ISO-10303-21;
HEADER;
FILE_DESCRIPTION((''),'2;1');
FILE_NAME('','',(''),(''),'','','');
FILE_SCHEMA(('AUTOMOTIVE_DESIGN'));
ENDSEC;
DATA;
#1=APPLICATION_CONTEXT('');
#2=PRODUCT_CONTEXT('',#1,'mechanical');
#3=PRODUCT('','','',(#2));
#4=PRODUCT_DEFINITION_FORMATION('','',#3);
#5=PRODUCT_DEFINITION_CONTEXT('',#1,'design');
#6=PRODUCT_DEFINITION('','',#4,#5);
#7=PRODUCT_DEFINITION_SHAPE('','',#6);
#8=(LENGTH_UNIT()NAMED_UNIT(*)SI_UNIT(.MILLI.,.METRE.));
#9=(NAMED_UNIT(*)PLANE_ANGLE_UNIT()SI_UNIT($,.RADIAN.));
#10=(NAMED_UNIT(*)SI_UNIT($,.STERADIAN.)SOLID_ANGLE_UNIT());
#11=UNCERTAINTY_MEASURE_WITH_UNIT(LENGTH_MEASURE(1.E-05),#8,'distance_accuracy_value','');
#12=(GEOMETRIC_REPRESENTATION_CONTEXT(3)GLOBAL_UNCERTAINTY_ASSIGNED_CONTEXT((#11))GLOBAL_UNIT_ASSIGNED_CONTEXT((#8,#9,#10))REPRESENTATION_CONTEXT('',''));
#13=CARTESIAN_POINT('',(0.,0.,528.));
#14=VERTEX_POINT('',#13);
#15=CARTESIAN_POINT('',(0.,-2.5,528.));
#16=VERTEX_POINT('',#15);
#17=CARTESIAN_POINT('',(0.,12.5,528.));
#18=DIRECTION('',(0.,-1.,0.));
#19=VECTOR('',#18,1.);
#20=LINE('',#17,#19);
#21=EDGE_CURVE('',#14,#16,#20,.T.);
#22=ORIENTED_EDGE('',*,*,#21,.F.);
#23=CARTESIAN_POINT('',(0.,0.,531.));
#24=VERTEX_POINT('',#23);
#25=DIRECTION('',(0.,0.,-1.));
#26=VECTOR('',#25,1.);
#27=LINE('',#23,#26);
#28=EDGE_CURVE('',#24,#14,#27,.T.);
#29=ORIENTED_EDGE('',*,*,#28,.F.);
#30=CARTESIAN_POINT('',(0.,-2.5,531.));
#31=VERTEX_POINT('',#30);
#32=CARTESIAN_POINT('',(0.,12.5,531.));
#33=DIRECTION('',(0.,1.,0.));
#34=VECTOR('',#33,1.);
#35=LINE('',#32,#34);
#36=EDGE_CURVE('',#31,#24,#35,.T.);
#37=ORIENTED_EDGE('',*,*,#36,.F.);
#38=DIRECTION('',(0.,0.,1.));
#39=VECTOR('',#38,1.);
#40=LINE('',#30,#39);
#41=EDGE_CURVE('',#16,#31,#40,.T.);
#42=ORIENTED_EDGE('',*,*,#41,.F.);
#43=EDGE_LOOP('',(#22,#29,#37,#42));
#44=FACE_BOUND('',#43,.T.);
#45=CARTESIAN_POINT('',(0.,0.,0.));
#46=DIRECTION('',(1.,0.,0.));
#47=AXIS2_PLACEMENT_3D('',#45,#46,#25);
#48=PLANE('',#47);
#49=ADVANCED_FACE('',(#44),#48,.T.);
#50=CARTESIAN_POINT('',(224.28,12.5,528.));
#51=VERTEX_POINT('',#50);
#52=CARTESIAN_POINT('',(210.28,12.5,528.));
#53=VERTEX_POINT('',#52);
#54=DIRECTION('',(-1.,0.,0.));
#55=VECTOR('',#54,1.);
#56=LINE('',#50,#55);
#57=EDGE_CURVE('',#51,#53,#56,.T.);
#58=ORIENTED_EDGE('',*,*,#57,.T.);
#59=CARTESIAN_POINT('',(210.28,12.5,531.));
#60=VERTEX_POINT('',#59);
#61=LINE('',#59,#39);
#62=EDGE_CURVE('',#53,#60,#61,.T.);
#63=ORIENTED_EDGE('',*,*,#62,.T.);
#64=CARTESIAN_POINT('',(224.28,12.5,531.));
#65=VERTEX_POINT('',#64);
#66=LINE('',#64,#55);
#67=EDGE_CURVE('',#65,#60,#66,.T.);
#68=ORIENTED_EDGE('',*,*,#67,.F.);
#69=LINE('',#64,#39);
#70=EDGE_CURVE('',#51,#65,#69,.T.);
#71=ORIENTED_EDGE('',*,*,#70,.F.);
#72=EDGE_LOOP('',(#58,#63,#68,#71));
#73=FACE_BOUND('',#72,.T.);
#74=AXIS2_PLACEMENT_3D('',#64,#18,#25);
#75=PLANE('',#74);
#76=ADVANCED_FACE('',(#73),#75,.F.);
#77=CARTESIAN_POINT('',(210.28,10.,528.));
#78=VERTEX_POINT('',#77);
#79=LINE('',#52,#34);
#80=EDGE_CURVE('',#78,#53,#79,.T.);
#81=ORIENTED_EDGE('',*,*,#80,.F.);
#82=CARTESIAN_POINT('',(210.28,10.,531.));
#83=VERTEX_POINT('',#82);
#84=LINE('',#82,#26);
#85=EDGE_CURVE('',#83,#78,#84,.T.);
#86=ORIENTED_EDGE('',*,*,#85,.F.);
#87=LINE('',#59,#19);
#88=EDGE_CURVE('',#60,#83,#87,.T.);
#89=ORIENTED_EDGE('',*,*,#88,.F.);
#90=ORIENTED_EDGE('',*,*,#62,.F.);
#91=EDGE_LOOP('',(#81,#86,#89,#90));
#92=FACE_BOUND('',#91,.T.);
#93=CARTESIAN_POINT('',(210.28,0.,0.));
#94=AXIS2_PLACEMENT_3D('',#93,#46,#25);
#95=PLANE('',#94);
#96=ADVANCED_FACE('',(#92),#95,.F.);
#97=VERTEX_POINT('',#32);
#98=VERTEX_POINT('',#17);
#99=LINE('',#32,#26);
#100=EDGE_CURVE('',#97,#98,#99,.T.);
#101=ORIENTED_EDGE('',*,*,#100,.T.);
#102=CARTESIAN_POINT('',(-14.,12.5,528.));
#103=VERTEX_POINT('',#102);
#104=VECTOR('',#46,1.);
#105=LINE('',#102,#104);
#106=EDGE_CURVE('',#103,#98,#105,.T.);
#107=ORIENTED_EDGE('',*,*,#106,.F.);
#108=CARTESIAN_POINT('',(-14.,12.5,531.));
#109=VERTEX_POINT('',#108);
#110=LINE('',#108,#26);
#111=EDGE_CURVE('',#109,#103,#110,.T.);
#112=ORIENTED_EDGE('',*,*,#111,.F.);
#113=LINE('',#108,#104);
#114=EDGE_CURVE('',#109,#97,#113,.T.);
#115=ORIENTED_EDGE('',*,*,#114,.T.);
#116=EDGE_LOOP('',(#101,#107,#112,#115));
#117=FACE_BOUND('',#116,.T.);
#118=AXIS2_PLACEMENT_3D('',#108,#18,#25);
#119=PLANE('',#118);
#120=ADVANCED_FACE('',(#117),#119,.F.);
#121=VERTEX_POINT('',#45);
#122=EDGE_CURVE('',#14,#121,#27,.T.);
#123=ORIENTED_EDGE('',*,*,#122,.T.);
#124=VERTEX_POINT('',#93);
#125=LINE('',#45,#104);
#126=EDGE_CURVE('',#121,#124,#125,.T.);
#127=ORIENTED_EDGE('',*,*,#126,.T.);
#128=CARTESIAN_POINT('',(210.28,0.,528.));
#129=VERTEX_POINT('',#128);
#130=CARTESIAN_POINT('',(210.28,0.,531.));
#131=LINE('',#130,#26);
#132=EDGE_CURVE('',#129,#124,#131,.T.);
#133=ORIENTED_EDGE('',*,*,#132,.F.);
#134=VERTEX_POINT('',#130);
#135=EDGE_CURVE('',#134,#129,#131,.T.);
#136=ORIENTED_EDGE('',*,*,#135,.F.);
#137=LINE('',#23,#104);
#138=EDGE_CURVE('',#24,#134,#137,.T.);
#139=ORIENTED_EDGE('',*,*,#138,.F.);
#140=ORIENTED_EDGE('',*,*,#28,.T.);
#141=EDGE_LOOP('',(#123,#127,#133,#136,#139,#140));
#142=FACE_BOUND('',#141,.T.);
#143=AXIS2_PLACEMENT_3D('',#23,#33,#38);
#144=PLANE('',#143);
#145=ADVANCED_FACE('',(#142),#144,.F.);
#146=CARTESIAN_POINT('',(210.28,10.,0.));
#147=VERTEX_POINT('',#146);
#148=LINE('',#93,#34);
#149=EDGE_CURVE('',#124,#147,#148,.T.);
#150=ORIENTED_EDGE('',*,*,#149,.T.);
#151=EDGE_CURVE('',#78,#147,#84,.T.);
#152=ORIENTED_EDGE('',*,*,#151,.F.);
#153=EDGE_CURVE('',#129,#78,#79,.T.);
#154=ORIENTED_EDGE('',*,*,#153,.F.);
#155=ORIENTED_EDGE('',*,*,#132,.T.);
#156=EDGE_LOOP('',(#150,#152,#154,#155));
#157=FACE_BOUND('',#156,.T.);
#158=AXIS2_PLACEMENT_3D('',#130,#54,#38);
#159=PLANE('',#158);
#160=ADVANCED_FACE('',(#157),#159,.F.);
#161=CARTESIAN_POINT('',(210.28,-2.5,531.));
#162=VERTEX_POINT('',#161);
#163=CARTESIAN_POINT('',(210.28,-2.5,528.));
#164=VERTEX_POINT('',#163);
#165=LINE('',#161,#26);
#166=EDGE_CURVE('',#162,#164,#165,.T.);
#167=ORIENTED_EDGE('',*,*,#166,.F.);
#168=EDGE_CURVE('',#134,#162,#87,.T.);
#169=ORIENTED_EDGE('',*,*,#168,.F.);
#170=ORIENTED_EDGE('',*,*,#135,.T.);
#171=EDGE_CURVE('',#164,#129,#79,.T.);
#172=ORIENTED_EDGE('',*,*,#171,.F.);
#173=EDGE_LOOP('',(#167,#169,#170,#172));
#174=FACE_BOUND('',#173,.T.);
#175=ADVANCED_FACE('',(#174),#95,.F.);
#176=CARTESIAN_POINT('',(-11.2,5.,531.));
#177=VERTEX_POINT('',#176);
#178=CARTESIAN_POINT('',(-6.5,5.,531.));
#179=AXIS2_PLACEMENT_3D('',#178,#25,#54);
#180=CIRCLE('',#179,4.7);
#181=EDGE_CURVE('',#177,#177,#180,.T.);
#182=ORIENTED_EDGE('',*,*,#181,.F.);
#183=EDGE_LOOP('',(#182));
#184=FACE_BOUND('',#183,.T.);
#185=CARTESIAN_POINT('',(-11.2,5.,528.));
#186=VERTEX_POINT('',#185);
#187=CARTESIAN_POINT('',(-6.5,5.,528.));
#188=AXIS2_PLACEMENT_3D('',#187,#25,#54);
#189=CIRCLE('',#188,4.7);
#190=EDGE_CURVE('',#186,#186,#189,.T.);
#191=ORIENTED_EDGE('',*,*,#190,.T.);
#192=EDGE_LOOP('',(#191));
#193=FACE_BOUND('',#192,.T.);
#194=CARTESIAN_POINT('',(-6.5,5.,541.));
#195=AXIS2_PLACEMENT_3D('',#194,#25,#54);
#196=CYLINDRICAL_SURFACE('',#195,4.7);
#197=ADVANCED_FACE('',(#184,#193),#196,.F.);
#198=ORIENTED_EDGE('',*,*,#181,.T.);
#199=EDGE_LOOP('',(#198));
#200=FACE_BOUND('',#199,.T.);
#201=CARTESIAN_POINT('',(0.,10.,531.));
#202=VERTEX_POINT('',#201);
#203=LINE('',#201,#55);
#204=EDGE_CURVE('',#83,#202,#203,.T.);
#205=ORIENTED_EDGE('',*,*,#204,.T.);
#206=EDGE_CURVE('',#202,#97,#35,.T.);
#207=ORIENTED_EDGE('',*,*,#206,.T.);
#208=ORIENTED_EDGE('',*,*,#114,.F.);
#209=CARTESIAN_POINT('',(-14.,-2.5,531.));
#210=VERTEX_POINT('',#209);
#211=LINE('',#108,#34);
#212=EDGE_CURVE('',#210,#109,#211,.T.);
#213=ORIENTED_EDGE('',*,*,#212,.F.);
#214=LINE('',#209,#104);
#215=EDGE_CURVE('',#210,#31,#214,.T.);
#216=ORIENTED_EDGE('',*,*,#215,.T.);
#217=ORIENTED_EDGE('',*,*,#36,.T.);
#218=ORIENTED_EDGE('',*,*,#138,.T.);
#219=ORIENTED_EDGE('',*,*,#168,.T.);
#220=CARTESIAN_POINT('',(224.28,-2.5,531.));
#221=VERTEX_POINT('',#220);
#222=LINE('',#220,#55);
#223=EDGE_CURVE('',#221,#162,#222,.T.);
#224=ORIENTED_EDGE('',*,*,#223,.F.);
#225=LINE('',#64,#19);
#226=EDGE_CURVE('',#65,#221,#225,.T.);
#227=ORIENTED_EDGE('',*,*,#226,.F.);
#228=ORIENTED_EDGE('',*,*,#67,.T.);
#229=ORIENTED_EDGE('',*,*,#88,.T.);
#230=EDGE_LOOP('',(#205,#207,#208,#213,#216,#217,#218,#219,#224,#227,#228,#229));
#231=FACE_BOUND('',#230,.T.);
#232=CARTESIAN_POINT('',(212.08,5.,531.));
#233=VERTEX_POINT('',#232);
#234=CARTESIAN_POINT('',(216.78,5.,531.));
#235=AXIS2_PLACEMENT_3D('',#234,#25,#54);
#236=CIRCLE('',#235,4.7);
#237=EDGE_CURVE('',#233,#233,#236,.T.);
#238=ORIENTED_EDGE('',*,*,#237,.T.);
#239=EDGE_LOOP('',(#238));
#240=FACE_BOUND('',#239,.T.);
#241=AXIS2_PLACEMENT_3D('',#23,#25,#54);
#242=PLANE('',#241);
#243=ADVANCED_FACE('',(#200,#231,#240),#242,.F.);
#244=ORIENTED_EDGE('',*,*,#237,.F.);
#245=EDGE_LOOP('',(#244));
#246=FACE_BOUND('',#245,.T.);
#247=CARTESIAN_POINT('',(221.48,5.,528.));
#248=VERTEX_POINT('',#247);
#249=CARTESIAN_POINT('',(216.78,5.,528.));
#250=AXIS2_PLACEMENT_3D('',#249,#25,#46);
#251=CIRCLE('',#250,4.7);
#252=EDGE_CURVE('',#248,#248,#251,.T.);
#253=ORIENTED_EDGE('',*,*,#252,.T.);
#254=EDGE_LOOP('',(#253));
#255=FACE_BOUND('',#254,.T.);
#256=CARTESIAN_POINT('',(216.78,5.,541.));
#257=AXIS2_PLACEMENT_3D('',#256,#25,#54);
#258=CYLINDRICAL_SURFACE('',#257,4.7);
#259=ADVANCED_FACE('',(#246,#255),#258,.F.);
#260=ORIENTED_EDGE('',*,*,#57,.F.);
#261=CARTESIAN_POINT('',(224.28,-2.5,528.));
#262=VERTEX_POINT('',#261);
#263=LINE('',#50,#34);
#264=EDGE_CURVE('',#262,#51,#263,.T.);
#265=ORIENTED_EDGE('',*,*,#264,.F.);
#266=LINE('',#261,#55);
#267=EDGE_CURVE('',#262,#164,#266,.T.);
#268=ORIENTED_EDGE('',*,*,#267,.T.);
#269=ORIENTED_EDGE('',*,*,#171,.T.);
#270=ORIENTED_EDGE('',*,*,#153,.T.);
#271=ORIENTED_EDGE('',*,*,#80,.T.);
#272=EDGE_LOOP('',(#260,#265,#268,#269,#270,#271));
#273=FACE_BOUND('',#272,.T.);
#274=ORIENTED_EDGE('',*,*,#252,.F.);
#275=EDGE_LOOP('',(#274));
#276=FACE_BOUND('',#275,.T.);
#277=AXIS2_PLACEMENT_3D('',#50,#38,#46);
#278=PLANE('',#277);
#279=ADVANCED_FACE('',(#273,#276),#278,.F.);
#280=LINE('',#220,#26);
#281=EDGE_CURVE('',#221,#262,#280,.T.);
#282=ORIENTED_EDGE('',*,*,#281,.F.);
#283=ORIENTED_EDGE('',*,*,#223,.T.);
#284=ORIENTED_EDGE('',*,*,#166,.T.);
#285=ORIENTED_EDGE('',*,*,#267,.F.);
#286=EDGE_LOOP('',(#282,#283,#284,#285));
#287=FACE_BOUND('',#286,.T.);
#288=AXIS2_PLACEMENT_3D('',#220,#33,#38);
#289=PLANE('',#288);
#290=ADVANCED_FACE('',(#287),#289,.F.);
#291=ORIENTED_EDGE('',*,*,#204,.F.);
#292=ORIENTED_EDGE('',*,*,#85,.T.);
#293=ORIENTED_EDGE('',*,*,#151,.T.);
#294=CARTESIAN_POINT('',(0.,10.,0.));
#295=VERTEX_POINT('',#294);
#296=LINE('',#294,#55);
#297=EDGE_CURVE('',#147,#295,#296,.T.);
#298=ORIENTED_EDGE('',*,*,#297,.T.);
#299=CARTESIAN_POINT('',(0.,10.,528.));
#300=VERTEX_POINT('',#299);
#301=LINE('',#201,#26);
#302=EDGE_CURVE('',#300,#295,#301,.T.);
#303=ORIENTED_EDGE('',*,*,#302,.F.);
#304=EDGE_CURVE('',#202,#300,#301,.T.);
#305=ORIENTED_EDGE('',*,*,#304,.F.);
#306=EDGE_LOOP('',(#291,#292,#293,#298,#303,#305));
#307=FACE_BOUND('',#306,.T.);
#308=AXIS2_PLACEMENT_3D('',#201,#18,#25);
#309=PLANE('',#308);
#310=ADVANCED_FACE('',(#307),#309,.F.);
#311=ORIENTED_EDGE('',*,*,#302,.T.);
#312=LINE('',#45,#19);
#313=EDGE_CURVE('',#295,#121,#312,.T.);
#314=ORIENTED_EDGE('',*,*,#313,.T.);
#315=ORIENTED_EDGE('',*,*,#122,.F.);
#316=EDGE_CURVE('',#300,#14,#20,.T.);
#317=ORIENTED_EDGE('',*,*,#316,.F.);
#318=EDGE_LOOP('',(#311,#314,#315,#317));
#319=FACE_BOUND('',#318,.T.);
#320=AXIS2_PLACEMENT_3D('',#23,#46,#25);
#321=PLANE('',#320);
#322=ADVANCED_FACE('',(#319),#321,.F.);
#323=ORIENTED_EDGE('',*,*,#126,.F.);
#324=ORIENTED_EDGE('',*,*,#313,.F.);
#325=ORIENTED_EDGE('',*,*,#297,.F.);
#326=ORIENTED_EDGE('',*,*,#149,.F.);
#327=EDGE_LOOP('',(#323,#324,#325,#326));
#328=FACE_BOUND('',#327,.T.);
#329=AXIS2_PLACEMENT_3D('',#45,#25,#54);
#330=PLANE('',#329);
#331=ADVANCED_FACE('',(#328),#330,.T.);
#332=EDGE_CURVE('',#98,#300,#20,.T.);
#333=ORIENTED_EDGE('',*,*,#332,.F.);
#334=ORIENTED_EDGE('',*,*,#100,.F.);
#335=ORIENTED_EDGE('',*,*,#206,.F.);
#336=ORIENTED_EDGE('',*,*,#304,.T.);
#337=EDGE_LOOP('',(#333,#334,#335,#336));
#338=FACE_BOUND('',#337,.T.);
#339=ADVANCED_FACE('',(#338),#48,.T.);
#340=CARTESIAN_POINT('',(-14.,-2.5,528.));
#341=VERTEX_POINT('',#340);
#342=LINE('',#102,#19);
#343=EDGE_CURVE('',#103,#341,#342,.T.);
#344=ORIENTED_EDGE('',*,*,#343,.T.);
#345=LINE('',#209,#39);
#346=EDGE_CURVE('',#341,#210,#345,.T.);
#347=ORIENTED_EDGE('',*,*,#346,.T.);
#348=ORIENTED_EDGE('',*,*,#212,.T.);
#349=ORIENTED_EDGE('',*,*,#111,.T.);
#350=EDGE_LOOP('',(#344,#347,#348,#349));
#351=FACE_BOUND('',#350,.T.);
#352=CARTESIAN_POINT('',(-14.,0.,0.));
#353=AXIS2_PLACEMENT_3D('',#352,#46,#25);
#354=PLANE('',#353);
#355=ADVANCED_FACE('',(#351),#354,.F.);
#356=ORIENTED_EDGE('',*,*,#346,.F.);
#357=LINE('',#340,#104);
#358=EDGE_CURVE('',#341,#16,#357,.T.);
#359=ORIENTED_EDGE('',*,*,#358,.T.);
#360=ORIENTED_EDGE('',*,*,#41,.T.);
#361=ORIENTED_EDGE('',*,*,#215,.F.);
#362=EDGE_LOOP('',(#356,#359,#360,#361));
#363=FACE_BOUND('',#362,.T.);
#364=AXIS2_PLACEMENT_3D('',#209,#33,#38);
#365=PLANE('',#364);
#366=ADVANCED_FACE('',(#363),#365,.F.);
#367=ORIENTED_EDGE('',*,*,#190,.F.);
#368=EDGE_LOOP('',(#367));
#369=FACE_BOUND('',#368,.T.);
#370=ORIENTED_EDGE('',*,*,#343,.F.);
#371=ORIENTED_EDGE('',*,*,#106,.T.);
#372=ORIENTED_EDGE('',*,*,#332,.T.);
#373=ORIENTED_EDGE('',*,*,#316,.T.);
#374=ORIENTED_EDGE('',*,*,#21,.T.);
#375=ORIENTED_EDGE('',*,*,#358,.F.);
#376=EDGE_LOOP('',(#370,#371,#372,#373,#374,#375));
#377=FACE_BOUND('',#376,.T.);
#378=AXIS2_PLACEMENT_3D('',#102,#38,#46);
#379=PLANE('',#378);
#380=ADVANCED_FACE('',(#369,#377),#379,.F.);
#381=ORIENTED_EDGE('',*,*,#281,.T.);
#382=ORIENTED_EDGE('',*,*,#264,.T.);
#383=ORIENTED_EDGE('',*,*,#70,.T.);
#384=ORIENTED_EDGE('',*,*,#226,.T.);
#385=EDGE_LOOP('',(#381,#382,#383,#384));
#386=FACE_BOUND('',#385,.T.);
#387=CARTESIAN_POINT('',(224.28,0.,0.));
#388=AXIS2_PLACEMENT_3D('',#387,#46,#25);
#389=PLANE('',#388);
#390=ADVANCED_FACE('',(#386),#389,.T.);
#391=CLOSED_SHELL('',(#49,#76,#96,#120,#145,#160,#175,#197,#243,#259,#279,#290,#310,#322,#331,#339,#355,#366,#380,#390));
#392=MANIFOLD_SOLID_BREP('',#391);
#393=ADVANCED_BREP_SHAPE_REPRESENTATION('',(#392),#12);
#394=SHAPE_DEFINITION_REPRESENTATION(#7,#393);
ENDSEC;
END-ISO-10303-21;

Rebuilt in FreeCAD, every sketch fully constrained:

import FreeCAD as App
import Part
import Sketcher
from FreeCAD import Vector
Q = App.Units.Quantity


def add_polygon(sketch, points):
    """Adds a closed chain of lines whose ends are joined by coincident constraints."""
    first, n = sketch.GeometryCount, len(points)
    for a, b in zip(points, points[1:] + points[:1]):
        sketch.addGeometry(Part.LineSegment(App.Vector(*a, 0), App.Vector(*b, 0)), False)
    for i in range(n):
        sketch.addConstraint(Sketcher.Constraint("Coincident", first + i, 2, first + (i + 1) % n, 1))

doc = App.newDocument("Part")
body = doc.addObject("PartDesign::Body", "Body")

# Sketch on XY plane
sketch1 = doc.addObject("Sketcher::SketchObject", "Sketch")
body.addObject(sketch1)
sketch1.AttachmentSupport = (doc.XY_Plane, [""])
sketch1.MapMode = "FlatFace"
add_polygon(sketch1, [(0, 10), (0, 0), (210, 0), (210, 10)])  # lines 0-3
sketch1.addConstraint(Sketcher.Constraint("Vertical", 0))
sketch1.addConstraint(Sketcher.Constraint("Horizontal", 1))
sketch1.addConstraint(Sketcher.Constraint("Vertical", 2))
sketch1.addConstraint(Sketcher.Constraint("Horizontal", 3))
sketch1.addConstraint(Sketcher.Constraint("Coincident", 0, 2, -1, 1))
sketch1.addConstraint(Sketcher.Constraint("DistanceY", 0, 2, 0, 1, Q("10 mm")))
sketch1.addConstraint(Sketcher.Constraint("DistanceX", 1, 1, 1, 2, Q("210.28 mm")))
pad1 = doc.addObject("PartDesign::Pad", "Pad")
body.addObject(pad1)
pad1.Profile = sketch1
pad1.Length = 531

# Sketch on YZ plane
sketch2 = doc.addObject("Sketcher::SketchObject", "Sketch001")
body.addObject(sketch2)
sketch2.AttachmentSupport = (doc.YZ_Plane, [""])
sketch2.MapMode = "FlatFace"
add_polygon(sketch2, [(12.5, 528), (-2.5, 528), (-2.5, 531), (12.5, 531)])  # lines 0-3
sketch2.addConstraint(Sketcher.Constraint("Horizontal", 0))
sketch2.addConstraint(Sketcher.Constraint("Vertical", 1))
sketch2.addConstraint(Sketcher.Constraint("Horizontal", 2))
sketch2.addConstraint(Sketcher.Constraint("Vertical", 3))
sketch2.addConstraint(Sketcher.Constraint("DistanceX", 0, 2, 0, 1, Q("15 mm")))
sketch2.addConstraint(Sketcher.Constraint("DistanceY", 1, 1, 1, 2, Q("3 mm")))
sketch2.addConstraint(Sketcher.Constraint("DistanceY", -1, 1, 0, 2, Q("528 mm")))
sketch2.addConstraint(Sketcher.Constraint("DistanceX", 0, 2, -1, 1, Q("2.5 mm")))
pad2 = doc.addObject("PartDesign::Pad", "Pad001")
body.addObject(pad2)
pad2.Profile = sketch2
pad2.Length = 14
pad2.Reversed = True

# Sketch on YZ plane
sketch3 = doc.addObject("Sketcher::SketchObject", "Sketch002")
body.addObject(sketch3)
sketch3.AttachmentSupport = (doc.YZ_Plane, [""])
sketch3.MapMode = "FlatFace"
sketch3.AttachmentOffset = App.Placement(Vector(0, 0, 210.28), App.Rotation())
add_polygon(sketch3, [(12.5, 531), (-2.5, 531), (-2.5, 528), (12.5, 528)])  # lines 0-3
sketch3.addConstraint(Sketcher.Constraint("Horizontal", 0))
sketch3.addConstraint(Sketcher.Constraint("Vertical", 1))
sketch3.addConstraint(Sketcher.Constraint("Horizontal", 2))
sketch3.addConstraint(Sketcher.Constraint("Vertical", 3))
sketch3.addConstraint(Sketcher.Constraint("DistanceX", 0, 2, 0, 1, Q("15 mm")))
sketch3.addConstraint(Sketcher.Constraint("DistanceY", 1, 2, 1, 1, Q("3 mm")))
sketch3.addConstraint(Sketcher.Constraint("DistanceY", -1, 1, 0, 2, Q("531 mm")))
sketch3.addConstraint(Sketcher.Constraint("DistanceX", 0, 2, -1, 1, Q("2.5 mm")))
pad3 = doc.addObject("PartDesign::Pad", "Pad002")
body.addObject(pad3)
pad3.Profile = sketch3
pad3.Length = 14

# Sketch on XY plane
sketch4 = doc.addObject("Sketcher::SketchObject", "Sketch003")
body.addObject(sketch4)
sketch4.AttachmentSupport = (doc.XY_Plane, [""])
sketch4.MapMode = "FlatFace"
sketch4.AttachmentOffset = App.Placement(Vector(0, 0, 528), App.Rotation())
sketch4.addGeometry(Part.Circle(Vector(-6.5, 5, 0), Vector(0, 0, 1), 4.7), False)
sketch4.addGeometry(Part.Circle(Vector(216.8, 5, 0), Vector(0, 0, 1), 4.7), False)
sketch4.addConstraint(Sketcher.Constraint("Equal", 0, 1))
sketch4.addConstraint(Sketcher.Constraint("Horizontal", 0, 3, 1, 3))
sketch4.addConstraint(Sketcher.Constraint("Diameter", 0, Q("9.4 mm")))
sketch4.addConstraint(Sketcher.Constraint("DistanceY", -1, 1, 0, 3, Q("5 mm")))
sketch4.addConstraint(Sketcher.Constraint("DistanceX", 0, 3, -1, 1, Q("6.5 mm")))
sketch4.addConstraint(Sketcher.Constraint("DistanceX", -1, 1, 1, 3, Q("216.78 mm")))
pocket1 = doc.addObject("PartDesign::Pocket", "Pocket")
body.addObject(pocket1)
pocket1.Profile = sketch4
pocket1.Length = 13
pocket1.Reversed = True

doc.recompute()
